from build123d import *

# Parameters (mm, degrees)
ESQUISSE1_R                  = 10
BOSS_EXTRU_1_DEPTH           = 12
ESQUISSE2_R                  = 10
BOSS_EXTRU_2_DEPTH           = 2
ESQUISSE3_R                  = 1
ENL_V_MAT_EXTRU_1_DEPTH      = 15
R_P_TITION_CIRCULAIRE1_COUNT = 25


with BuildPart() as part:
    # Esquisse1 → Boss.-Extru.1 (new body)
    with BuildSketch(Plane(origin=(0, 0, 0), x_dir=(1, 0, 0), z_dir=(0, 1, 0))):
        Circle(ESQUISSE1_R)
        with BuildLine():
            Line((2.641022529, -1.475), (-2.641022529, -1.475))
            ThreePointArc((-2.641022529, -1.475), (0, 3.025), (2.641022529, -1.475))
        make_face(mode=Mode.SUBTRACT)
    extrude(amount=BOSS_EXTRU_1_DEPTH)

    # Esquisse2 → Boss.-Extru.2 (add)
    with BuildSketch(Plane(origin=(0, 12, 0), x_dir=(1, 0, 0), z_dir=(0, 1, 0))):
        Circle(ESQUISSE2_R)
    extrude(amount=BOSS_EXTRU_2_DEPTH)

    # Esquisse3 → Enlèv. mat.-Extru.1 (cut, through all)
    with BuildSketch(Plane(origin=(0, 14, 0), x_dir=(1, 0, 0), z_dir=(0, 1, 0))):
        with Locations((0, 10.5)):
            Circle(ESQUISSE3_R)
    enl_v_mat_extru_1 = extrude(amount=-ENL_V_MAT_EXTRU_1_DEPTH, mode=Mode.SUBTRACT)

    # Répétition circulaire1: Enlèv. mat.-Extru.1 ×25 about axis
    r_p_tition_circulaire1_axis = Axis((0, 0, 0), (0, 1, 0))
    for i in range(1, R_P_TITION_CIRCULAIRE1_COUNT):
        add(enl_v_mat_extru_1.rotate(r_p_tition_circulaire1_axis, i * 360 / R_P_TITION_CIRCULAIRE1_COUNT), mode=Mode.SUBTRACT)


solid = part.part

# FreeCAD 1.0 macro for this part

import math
import FreeCAD as App
import Part
import Sketcher

doc = App.newDocument("Part")
body = doc.addObject("PartDesign::Body", "Body")

sketch1 = body.newObject("Sketcher::SketchObject", "Sketch")
sketch1.AttachmentSupport = (doc.getObject("XZ_Plane"), [""])
sketch1.MapMode = "FlatFace"
sketch1.addGeometry(Part.Circle(App.Vector(0, 0, 0), App.Vector(0, 0, 1), 10), False)
sketch1.addGeometry(Part.ArcOfCircle(Part.Circle(App.Vector(0, 0, 0), App.Vector(0, 0, 1), 3), math.radians(151), math.radians(389)), False)
sketch1.addGeometry(Part.LineSegment(App.Vector(2.6, 1.5, 0), App.Vector(-2.6, 1.5, 0)), False)
sketch1.addConstraint(Sketcher.Constraint("Coincident", 1, 1, 2, 2))
sketch1.addConstraint(Sketcher.Constraint("Coincident", 2, 1, 1, 2))
sketch1.addConstraint(Sketcher.Constraint("Horizontal", 2))
sketch1.addConstraint(Sketcher.Constraint("Coincident", 0, 3, -1, 1))
sketch1.addConstraint(Sketcher.Constraint("Coincident", 1, 3, -1, 1))
sketch1.addConstraint(Sketcher.Constraint("Diameter", 0, 20.0))
sketch1.addConstraint(Sketcher.Constraint("Radius", 1, 3.025))
sketch1.addConstraint(Sketcher.Constraint("DistanceY", -1, 1, 1, 1, 1.475))
pad1 = body.newObject("PartDesign::Pad", "Pad")
pad1.Profile = sketch1
pad1.Length = 12
pad1.Reversed = True

sketch2 = body.newObject("Sketcher::SketchObject", "Sketch001")
sketch2.AttachmentSupport = (doc.getObject("XZ_Plane"), [""])
sketch2.MapMode = "FlatFace"
sketch2.AttachmentOffset = App.Placement(App.Vector(0, 0, -12), App.Rotation())
sketch2.addGeometry(Part.Circle(App.Vector(0, 0, 0), App.Vector(0, 0, 1), 10), False)
sketch2.addConstraint(Sketcher.Constraint("Coincident", 0, 3, -1, 1))
sketch2.addConstraint(Sketcher.Constraint("Diameter", 0, 20.0))
pad2 = body.newObject("PartDesign::Pad", "Pad001")
pad2.Profile = sketch2
pad2.Length = 2
pad2.Reversed = True

sketch3 = body.newObject("Sketcher::SketchObject", "Sketch002")
sketch3.AttachmentSupport = (doc.getObject("XZ_Plane"), [""])
sketch3.MapMode = "FlatFace"
sketch3.AttachmentOffset = App.Placement(App.Vector(0, 0, -14), App.Rotation())
sketch3.addGeometry(Part.Circle(App.Vector(0, -10.5, 0), App.Vector(0, 0, 1), 1), False)
sketch3.addConstraint(Sketcher.Constraint("PointOnObject", 0, 3, -2))
sketch3.addConstraint(Sketcher.Constraint("Diameter", 0, 2.0))
sketch3.addConstraint(Sketcher.Constraint("DistanceY", 0, 3, -1, 1, 10.5))
pocket1 = body.newObject("PartDesign::Pocket", "Pocket")
pocket1.Profile = sketch3
pocket1.Type = "ThroughAll"
pocket1.Reversed = True
doc.recompute()

polarpattern = body.newObject("PartDesign::PolarPattern", "PolarPattern")
polarpattern.Originals = [pocket1]
polarpattern.Axis = (doc.getObject("Y_Axis"), [""])
polarpattern.Angle = 360
polarpattern.Occurrences = 25
body.Tip = polarpattern

doc.recompute()
